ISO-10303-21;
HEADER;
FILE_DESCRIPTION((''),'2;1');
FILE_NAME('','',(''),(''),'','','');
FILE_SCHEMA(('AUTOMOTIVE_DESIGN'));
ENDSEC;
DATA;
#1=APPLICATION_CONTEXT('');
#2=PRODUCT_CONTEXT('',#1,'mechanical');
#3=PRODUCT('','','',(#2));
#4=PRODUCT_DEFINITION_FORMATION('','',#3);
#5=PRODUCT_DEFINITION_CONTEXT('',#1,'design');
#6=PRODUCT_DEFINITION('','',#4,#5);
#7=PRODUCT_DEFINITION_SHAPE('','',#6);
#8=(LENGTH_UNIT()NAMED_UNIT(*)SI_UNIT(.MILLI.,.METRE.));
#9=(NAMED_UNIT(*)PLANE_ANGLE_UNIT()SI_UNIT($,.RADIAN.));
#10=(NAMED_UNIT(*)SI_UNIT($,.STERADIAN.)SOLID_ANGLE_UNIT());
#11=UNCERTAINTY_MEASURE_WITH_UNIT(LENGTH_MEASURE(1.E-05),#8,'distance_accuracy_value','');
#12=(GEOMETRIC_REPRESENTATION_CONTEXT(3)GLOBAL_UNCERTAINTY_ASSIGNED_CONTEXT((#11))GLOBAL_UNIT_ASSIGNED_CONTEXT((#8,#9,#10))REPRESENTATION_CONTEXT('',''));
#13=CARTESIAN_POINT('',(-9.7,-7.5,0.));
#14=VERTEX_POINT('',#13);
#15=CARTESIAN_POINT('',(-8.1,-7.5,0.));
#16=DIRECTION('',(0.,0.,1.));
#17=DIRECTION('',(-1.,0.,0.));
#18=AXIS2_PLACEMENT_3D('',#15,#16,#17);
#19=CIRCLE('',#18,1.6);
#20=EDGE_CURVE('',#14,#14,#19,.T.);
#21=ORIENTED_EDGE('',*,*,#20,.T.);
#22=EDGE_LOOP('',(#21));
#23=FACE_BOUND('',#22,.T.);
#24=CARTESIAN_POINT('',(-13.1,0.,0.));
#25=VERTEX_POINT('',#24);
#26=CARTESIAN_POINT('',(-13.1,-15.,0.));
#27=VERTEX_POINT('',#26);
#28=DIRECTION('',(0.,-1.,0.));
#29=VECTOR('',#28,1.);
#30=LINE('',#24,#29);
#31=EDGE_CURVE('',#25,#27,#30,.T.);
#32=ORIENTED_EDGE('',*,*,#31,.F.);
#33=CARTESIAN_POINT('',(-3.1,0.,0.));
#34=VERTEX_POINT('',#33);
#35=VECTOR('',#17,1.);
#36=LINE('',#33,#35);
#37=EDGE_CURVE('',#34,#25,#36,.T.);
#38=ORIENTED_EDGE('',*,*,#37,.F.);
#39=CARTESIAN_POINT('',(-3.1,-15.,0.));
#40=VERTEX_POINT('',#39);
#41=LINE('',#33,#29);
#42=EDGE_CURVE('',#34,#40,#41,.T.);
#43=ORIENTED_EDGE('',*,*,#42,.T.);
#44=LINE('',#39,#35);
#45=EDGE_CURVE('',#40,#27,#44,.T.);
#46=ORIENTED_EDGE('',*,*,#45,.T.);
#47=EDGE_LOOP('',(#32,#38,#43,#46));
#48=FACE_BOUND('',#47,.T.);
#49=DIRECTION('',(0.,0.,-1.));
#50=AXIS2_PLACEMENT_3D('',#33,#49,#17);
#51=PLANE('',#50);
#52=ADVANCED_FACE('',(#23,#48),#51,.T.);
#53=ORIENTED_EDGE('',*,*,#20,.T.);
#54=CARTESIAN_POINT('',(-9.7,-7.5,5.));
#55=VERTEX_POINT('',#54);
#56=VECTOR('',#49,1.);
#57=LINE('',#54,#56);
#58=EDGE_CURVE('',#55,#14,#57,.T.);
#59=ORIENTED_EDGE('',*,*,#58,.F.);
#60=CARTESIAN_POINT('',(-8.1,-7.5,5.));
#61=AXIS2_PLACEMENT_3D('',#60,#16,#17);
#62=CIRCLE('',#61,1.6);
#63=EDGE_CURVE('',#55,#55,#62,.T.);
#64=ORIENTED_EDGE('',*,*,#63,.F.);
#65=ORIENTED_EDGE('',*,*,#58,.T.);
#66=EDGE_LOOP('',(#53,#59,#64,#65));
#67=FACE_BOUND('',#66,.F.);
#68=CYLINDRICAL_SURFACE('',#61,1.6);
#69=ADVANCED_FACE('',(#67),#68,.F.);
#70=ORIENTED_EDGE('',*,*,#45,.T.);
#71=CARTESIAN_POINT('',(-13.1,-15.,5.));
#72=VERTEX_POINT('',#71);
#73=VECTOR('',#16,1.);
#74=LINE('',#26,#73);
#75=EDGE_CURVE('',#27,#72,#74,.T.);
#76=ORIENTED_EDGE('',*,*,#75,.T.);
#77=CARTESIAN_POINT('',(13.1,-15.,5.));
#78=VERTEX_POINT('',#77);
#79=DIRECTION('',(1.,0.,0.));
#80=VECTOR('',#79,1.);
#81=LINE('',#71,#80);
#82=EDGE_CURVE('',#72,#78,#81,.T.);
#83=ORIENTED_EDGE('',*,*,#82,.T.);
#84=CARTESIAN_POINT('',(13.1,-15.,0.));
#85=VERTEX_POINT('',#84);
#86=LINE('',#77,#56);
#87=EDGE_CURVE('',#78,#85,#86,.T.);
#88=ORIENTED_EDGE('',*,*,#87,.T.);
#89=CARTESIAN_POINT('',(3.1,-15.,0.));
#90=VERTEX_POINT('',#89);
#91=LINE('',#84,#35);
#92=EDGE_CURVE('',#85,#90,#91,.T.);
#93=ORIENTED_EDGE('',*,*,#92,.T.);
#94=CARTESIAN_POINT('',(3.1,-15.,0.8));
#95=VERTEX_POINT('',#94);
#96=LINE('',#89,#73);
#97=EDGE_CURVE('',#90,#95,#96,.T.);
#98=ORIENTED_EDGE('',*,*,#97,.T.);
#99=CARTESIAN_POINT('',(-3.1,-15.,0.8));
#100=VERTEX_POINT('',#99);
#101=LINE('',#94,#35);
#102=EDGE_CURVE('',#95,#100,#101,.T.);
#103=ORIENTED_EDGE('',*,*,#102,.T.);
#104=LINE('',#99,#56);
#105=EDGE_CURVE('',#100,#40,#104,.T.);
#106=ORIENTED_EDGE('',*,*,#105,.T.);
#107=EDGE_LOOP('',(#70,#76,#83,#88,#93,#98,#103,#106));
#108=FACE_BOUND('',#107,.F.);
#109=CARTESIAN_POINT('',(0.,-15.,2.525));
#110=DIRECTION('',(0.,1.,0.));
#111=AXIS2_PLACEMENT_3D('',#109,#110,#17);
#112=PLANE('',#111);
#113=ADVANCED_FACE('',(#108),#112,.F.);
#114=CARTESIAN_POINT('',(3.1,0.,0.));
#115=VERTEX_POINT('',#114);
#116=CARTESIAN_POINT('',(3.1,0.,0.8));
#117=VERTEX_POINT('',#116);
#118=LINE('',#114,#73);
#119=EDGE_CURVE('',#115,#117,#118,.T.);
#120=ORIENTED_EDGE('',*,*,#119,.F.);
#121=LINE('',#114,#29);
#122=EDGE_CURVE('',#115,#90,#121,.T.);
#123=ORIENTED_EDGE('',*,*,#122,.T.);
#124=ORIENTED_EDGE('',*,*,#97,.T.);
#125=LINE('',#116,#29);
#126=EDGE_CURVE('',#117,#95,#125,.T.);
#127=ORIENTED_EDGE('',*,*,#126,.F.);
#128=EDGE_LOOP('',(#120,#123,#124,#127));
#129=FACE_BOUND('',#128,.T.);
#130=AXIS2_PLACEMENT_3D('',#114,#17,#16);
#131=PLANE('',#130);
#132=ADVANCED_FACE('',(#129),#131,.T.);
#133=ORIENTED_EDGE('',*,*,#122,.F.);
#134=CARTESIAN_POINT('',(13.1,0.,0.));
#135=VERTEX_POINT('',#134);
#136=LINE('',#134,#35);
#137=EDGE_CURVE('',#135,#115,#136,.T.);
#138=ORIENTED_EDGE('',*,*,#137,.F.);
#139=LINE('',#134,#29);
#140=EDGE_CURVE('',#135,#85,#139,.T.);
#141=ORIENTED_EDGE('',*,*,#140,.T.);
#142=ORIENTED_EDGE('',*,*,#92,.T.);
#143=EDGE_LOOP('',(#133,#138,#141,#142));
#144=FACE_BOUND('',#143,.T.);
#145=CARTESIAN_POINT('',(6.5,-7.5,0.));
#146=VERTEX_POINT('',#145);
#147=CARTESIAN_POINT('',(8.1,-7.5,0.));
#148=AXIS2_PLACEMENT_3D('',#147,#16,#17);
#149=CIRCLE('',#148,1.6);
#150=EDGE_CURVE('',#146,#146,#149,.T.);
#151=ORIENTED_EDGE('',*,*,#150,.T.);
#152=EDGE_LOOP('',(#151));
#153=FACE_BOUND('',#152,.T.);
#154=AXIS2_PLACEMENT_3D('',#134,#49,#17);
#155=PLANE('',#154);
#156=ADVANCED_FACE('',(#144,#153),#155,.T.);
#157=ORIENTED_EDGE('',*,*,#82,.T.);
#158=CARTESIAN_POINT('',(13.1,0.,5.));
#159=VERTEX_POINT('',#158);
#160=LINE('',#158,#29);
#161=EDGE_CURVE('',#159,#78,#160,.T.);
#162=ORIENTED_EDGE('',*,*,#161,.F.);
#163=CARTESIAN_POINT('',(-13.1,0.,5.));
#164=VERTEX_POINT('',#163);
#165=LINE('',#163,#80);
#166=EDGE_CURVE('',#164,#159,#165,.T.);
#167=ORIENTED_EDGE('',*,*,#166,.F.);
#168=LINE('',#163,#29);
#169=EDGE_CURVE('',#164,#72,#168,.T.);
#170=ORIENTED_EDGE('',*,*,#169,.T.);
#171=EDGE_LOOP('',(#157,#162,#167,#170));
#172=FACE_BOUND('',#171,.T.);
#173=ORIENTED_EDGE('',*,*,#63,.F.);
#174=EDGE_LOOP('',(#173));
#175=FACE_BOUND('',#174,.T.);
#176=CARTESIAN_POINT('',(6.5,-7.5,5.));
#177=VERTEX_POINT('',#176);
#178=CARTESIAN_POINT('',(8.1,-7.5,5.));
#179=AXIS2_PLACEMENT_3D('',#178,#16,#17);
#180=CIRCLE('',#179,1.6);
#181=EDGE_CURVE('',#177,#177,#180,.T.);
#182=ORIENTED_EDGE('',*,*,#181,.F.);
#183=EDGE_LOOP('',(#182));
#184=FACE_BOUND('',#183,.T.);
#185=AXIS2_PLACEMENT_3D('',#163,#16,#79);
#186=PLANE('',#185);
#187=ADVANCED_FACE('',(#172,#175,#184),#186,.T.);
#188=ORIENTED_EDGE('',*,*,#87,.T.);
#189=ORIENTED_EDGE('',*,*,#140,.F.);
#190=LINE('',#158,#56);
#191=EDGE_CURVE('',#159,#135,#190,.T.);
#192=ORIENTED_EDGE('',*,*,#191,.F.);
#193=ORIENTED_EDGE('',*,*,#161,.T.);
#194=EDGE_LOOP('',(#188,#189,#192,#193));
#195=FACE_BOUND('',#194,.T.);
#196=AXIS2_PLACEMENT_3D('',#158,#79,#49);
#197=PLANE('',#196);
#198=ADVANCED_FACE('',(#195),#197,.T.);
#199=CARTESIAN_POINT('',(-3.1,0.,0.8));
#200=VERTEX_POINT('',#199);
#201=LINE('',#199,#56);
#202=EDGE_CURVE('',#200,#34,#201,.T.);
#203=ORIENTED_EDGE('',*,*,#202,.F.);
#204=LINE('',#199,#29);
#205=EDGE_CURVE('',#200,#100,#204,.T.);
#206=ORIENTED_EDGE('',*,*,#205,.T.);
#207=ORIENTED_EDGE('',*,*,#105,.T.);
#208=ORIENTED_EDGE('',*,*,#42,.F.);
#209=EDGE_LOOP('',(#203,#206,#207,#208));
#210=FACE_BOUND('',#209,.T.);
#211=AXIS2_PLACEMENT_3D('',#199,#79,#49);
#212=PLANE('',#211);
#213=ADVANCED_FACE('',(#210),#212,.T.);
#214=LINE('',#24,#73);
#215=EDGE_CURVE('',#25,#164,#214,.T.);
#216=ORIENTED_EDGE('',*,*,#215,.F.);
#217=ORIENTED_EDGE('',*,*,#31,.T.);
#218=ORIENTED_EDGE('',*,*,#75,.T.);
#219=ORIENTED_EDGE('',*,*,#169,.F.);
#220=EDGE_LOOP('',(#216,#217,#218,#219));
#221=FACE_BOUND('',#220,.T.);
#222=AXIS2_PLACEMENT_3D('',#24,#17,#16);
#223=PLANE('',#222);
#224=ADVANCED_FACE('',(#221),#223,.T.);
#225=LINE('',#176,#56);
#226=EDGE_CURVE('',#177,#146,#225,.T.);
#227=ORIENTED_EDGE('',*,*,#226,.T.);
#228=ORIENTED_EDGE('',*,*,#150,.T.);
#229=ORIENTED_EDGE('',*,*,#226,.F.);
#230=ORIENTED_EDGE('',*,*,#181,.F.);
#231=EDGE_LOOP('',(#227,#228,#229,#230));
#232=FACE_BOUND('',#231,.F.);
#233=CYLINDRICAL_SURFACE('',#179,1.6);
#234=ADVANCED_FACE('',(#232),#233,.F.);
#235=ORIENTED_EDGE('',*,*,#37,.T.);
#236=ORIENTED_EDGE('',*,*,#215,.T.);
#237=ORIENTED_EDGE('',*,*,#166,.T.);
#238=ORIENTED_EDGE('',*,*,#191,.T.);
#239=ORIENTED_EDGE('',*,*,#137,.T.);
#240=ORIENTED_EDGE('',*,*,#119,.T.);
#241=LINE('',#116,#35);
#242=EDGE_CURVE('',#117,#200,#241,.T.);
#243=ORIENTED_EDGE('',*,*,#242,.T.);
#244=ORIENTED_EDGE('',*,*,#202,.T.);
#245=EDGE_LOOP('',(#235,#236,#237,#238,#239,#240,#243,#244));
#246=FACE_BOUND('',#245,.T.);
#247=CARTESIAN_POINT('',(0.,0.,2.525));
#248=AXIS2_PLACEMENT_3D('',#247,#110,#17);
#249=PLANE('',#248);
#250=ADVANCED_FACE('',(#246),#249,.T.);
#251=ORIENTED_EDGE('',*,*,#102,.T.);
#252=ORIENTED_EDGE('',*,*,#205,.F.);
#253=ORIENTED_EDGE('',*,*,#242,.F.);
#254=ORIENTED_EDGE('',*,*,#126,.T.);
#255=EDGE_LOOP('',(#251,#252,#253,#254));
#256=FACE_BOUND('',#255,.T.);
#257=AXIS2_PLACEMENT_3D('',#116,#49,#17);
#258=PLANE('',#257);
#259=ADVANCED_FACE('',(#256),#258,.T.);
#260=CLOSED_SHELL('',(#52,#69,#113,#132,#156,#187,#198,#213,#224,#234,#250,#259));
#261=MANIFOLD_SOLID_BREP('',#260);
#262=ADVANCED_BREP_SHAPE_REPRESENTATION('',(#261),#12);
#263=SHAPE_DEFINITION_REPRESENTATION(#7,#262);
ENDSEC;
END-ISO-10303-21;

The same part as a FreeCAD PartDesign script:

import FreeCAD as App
import Part
import Sketcher
Q = App.Units.Quantity


def add_polygon(sketch, points):
    """Adds a closed chain of lines whose ends are joined by coincident constraints."""
    first, n = sketch.GeometryCount, len(points)
    for a, b in zip(points, points[1:] + points[:1]):
        sketch.addGeometry(Part.LineSegment(App.Vector(*a, 0), App.Vector(*b, 0)), False)
    for i in range(n):
        sketch.addConstraint(Sketcher.Constraint("Coincident", first + i, 2, first + (i + 1) % n, 1))

doc = App.newDocument("Part")
params = doc.addObject("Spreadsheet::Sheet", "Params")
for row, (alias, value) in enumerate([
    ("sketch1_width", "10 mm"),
    ("sketch1_height", "5 mm"),
    ("sketch1_width2", "6.2 mm"),
    ("sketch1_height2", "0.8 mm"),
    ("pad1_length", "15 mm"),
    ("sketch2_diameter", "3.2 mm"),
    ("pocket1_length", "5 mm"),
], start=1):
    params.set(f"A{row}", alias)
    params.set(f"B{row}", "=" + value)
    params.setAlias(f"B{row}", alias)

body = doc.addObject("PartDesign::Body", "Body")

sketch1 = doc.addObject("Sketcher::SketchObject", "Sketch")
body.addObject(sketch1)
sketch1.AttachmentSupport = (doc.XZ_Plane, [""])
sketch1.MapMode = "FlatFace"
add_polygon(sketch1, [(-13.1, 0), (-3.1, 0), (-3.1, 0.8), (3.1, 0.8), (3.1, 0), (13.1, 0), (13.1, 5), (-13.1, 5)])
sketch1.addConstraint(Sketcher.Constraint("Horizontal", 0))
sketch1.addConstraint(Sketcher.Constraint("Vertical", 1))
sketch1.addConstraint(Sketcher.Constraint("Horizontal", 2))
sketch1.addConstraint(Sketcher.Constraint("Vertical", 3))
sketch1.addConstraint(Sketcher.Constraint("Horizontal", 4))
sketch1.addConstraint(Sketcher.Constraint("Vertical", 5))
sketch1.addConstraint(Sketcher.Constraint("Horizontal", 6))
sketch1.addConstraint(Sketcher.Constraint("Vertical", 7))
sketch1.addConstraint(Sketcher.Constraint("Symmetric", 0, 2, 3, 2, -1, 1))
sketch1.addConstraint(Sketcher.Constraint("Symmetric", 4, 2, 7, 2, -2))
sketch1.addConstraint(Sketcher.Constraint("DistanceX", 0, 1, 0, 2, Q("10 mm")))
sketch1.addConstraint(Sketcher.Constraint("DistanceY", 5, 1, 5, 2, Q("5 mm")))
sketch1.addConstraint(Sketcher.Constraint("DistanceX", 2, 1, 2, 2, Q("6.2 mm")))
sketch1.addConstraint(Sketcher.Constraint("DistanceY", 1, 1, 1, 2, Q("0.8 mm")))
sketch1.setExpression("Constraints[18]", "Params.sketch1_width")
sketch1.setExpression("Constraints[19]", "Params.sketch1_height")
sketch1.setExpression("Constraints[20]", "Params.sketch1_width2")
sketch1.setExpression("Constraints[21]", "Params.sketch1_height2")
pad1 = doc.addObject("PartDesign::Pad", "Pad")
body.addObject(pad1)
pad1.Profile = sketch1
pad1.setExpression("Length", "Params.pad1_length")

sketch2 = doc.addObject("Sketcher::SketchObject", "Sketch001")
body.addObject(sketch2)
sketch2.AttachmentSupport = (doc.XY_Plane, [""])
sketch2.MapMode = "FlatFace"
sketch2.AttachmentOffset = App.Placement(App.Vector(0, 0, 5), App.Rotation())
sketch2.addGeometry(Part.Circle(App.Vector(8.1, -7.5, 0), App.Vector(0, 0, 1), 1.6), False)
sketch2.addGeometry(Part.Circle(App.Vector(-8.1, -7.5, 0), App.Vector(0, 0, 1), 1.6), False)
sketch2.addConstraint(Sketcher.Constraint("Equal", 0, 1))
sketch2.addConstraint(Sketcher.Constraint("Symmetric", 0, 3, 1, 3, -2))
sketch2.addConstraint(Sketcher.Constraint("Diameter", 0, Q("3.2 mm")))
sketch2.addConstraint(Sketcher.Constraint("DistanceX", -1, 1, 0, 3, Q("8.1 mm")))
sketch2.addConstraint(Sketcher.Constraint("DistanceY", 0, 3, -1, 1, Q("7.5 mm")))
sketch2.setExpression("Constraints[2]", "Params.sketch2_diameter")
pocket1 = doc.addObject("PartDesign::Pocket", "Pocket")
body.addObject(pocket1)
pocket1.Profile = sketch2
pocket1.setExpression("Length", "Params.pocket1_length")

doc.recompute()
